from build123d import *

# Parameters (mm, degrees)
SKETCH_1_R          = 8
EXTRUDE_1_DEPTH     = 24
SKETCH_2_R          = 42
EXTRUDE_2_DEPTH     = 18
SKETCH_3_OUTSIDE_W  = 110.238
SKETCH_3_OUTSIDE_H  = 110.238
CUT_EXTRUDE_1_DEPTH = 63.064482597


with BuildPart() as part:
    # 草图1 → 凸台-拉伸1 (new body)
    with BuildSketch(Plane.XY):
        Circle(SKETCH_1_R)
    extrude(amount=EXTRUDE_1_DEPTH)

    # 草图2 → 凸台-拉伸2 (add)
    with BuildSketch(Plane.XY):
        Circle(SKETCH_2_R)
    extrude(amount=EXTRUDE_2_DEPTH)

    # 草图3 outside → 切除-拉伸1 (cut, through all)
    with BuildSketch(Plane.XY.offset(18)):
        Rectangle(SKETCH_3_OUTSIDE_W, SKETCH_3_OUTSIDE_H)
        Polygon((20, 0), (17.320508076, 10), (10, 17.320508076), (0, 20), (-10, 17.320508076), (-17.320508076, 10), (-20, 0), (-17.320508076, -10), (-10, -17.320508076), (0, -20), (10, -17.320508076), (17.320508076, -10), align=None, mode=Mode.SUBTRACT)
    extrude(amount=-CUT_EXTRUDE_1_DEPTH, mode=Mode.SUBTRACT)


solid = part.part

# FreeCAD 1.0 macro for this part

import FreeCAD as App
import Part
import Sketcher
from FreeCAD import Vector
Q = App.Units.Quantity

doc = App.newDocument("Part")
body = doc.addObject("PartDesign::Body", "Body")

# Sketch on XY plane
sketch1 = body.newObject("Sketcher::SketchObject", "Sketch")
sketch1.AttachmentSupport = (doc.getObject("XY_Plane"), [""])
sketch1.MapMode = "FlatFace"
sketch1.addGeometry(Part.Circle(Vector(0, 0, 0), Vector(0, 0, 1), 8), False)
sketch1.addConstraint(Sketcher.Constraint("Coincident", 0, 3, -1, 1))
sketch1.addConstraint(Sketcher.Constraint("Diameter", 0, Q("16 mm")))
pad1 = body.newObject("PartDesign::Pad", "Pad")
pad1.Profile = sketch1
pad1.Length = 24

# Sketch on XY plane
sketch2 = body.newObject("Sketcher::SketchObject", "Sketch001")
sketch2.AttachmentSupport = (doc.getObject("XY_Plane"), [""])
sketch2.MapMode = "FlatFace"
sketch2.addGeometry(Part.Circle(Vector(0, 0, 0), Vector(0, 0, 1), 42), False)
sketch2.addConstraint(Sketcher.Constraint("Coincident", 0, 3, -1, 1))
sketch2.addConstraint(Sketcher.Constraint("Diameter", 0, Q("84 mm")))
pad2 = body.newObject("PartDesign::Pad", "Pad001")
pad2.Profile = sketch2
pad2.Length = 18

# Sketch on XY plane
sketch3 = body.newObject("Sketcher::SketchObject", "Sketch002")
sketch3.AttachmentSupport = (doc.getObject("XY_Plane"), [""])
sketch3.MapMode = "FlatFace"
sketch3.AttachmentOffset = App.Placement(Vector(0, 0, 18), App.Rotation())
sketch3.addGeometry(Part.LineSegment(Vector(-55.119, 55.119, 0), Vector(-55.119, -55.119, 0)), False)
sketch3.addGeometry(Part.LineSegment(Vector(-55.119, -55.119, 0), Vector(55.119, -55.119, 0)), False)
sketch3.addGeometry(Part.LineSegment(Vector(55.119, -55.119, 0), Vector(55.119, 55.119, 0)), False)
sketch3.addGeometry(Part.LineSegment(Vector(55.119, 55.119, 0), Vector(-55.119, 55.119, 0)), False)
sketch3.addGeometry(Part.LineSegment(Vector(17.320508, 10, 0), Vector(20, 0, 0)), False)
sketch3.addGeometry(Part.LineSegment(Vector(20, 0, 0), Vector(17.320508, -10, 0)), False)
sketch3.addGeometry(Part.LineSegment(Vector(17.320508, -10, 0), Vector(10, -17.320508, 0)), False)
sketch3.addGeometry(Part.LineSegment(Vector(10, -17.320508, 0), Vector(0, -20, 0)), False)
sketch3.addGeometry(Part.LineSegment(Vector(0, -20, 0), Vector(-10, -17.320508, 0)), False)
sketch3.addGeometry(Part.LineSegment(Vector(-10, -17.320508, 0), Vector(-17.320508, -10, 0)), False)
sketch3.addGeometry(Part.LineSegment(Vector(-17.320508, -10, 0), Vector(-20, 0, 0)), False)
sketch3.addGeometry(Part.LineSegment(Vector(-20, 0, 0), Vector(-17.320508, 10, 0)), False)
sketch3.addGeometry(Part.LineSegment(Vector(-17.320508, 10, 0), Vector(-10, 17.320508, 0)), False)
sketch3.addGeometry(Part.LineSegment(Vector(-10, 17.320508, 0), Vector(0, 20, 0)), False)
sketch3.addGeometry(Part.LineSegment(Vector(0, 20, 0), Vector(10, 17.320508, 0)), False)
sketch3.addGeometry(Part.LineSegment(Vector(10, 17.320508, 0), Vector(17.320508, 10, 0)), False)
sketch3.addConstraint(Sketcher.Constraint("Coincident", 0, 2, 1, 1))
sketch3.addConstraint(Sketcher.Constraint("Coincident", 1, 2, 2, 1))
sketch3.addConstraint(Sketcher.Constraint("Coincident", 2, 2, 3, 1))
sketch3.addConstraint(Sketcher.Constraint("Coincident", 3, 2, 0, 1))
sketch3.addConstraint(Sketcher.Constraint("Coincident", 4, 2, 5, 1))
sketch3.addConstraint(Sketcher.Constraint("Coincident", 5, 2, 6, 1))
sketch3.addConstraint(Sketcher.Constraint("Coincident", 6, 2, 7, 1))
sketch3.addConstraint(Sketcher.Constraint("Coincident", 7, 2, 8, 1))
sketch3.addConstraint(Sketcher.Constraint("Coincident", 8, 2, 9, 1))
sketch3.addConstraint(Sketcher.Constraint("Coincident", 9, 2, 10, 1))
sketch3.addConstraint(Sketcher.Constraint("Coincident", 10, 2, 11, 1))
sketch3.addConstraint(Sketcher.Constraint("Coincident", 11, 2, 12, 1))
sketch3.addConstraint(Sketcher.Constraint("Coincident", 12, 2, 13, 1))
sketch3.addConstraint(Sketcher.Constraint("Coincident", 13, 2, 14, 1))
sketch3.addConstraint(Sketcher.Constraint("Coincident", 14, 2, 15, 1))
sketch3.addConstraint(Sketcher.Constraint("Coincident", 15, 2, 4, 1))
sketch3.addConstraint(Sketcher.Constraint("Vertical", 0))
sketch3.addConstraint(Sketcher.Constraint("Horizontal", 1))
sketch3.addConstraint(Sketcher.Constraint("Vertical", 2))
sketch3.addConstraint(Sketcher.Constraint("Horizontal", 3))
sketch3.addConstraint(Sketcher.Constraint("Symmetric", 0, 2, 2, 2, -1, 1))
sketch3.addConstraint(Sketcher.Constraint("Symmetric", 4, 2, 10, 2, -1, 1))
sketch3.addConstraint(Sketcher.Constraint("Symmetric", 5, 2, 11, 2, -1, 1))
sketch3.addConstraint(Sketcher.Constraint("Symmetric", 6, 2, 12, 2, -1, 1))
sketch3.addConstraint(Sketcher.Constraint("Symmetric", 7, 2, 13, 2, -1, 1))
sketch3.addConstraint(Sketcher.Constraint("Symmetric", 8, 2, 14, 2, -1, 1))
sketch3.addConstraint(Sketcher.Constraint("Symmetric", 9, 2, 15, 2, -1, 1))
sketch3.addConstraint(Sketcher.Constraint("Symmetric", 6, 2, 8, 2, -2))
sketch3.addConstraint(Sketcher.Constraint("Symmetric", 5, 2, 9, 2, -2))
sketch3.addConstraint(Sketcher.Constraint("PointOnObject", 4, 2, -1))
sketch3.addConstraint(Sketcher.Constraint("PointOnObject", 7, 2, -2))
sketch3.addConstraint(Sketcher.Constraint("Perpendicular", 4, 7))
sketch3.addConstraint(Sketcher.Constraint("Perpendicular", 6, 9))
sketch3.addConstraint(Sketcher.Constraint("Equal", 3, 0))
sketch3.addConstraint(Sketcher.Constraint("Equal", 5, 6))
sketch3.addConstraint(Sketcher.Constraint("Equal", 6, 7))
sketch3.addConstraint(Sketcher.Constraint("Angle", 4, Q("-75 deg")))
sketch3.addConstraint(Sketcher.Constraint("DistanceX", -1, 1, 4, 2, Q("20 mm")))
sketch3.addConstraint(Sketcher.Constraint("DistanceX", 1, 1, 1, 2, Q("110.238 mm")))
pocket1 = body.newObject("PartDesign::Pocket", "Pocket")
pocket1.Profile = sketch3
pocket1.Type = "ThroughAll"

doc.recompute()
